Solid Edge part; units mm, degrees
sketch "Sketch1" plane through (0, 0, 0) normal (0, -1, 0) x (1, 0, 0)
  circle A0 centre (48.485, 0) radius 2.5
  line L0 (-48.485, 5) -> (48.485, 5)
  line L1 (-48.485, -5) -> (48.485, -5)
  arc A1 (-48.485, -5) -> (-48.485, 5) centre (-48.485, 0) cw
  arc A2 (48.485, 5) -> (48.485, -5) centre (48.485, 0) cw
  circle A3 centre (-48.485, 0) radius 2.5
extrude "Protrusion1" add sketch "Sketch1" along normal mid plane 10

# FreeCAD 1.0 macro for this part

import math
import FreeCAD as App
import Part
import Sketcher

doc = App.newDocument("Part")
body = doc.addObject("PartDesign::Body", "Body")

# Sketch on XZ plane
sketch1 = body.newObject("Sketcher::SketchObject", "Sketch")
sketch1.AttachmentSupport = (doc.getObject("XZ_Plane"), [""])
sketch1.MapMode = "FlatFace"
sketch1.addGeometry([
    Part.LineSegment(App.Vector(48.485, 5, 0), App.Vector(-48.485, 5, 0)),  # 0
    Part.ArcOfCircle(Part.Circle(App.Vector(-48.485, 0, 0), App.Vector(0, 0, 1), 5), math.radians(90), math.radians(270)),  # 1
    Part.LineSegment(App.Vector(-48.485, -5, 0), App.Vector(48.485, -5, 0)),  # 2
    Part.ArcOfCircle(Part.Circle(App.Vector(48.485, 0, 0), App.Vector(0, 0, 1), 5), math.radians(-90), math.radians(90)),  # 3
    Part.Circle(App.Vector(-48.485, 0, 0), App.Vector(0, 0, 1), 2.5),  # 4
    Part.Circle(App.Vector(48.485, 0, 0), App.Vector(0, 0, 1), 2.5),  # 5
], False)
sketch1.addConstraint([
    Sketcher.Constraint("Tangent", 0, 2, 1, 1),
    Sketcher.Constraint("Tangent", 1, 2, 2, 1),
    Sketcher.Constraint("Tangent", 2, 2, 3, 1),
    Sketcher.Constraint("Tangent", 3, 2, 0, 1),
    Sketcher.Constraint("Horizontal", 0),
    Sketcher.Constraint("Horizontal", 2),
    Sketcher.Constraint("Coincident", 4, 3, 1, 3),
    Sketcher.Constraint("Coincident", 5, 3, 3, 3),
    Sketcher.Constraint("Equal", 4, 5),
    Sketcher.Constraint("Symmetric", 1, 3, 3, 3, -1, 1),
    Sketcher.Constraint("Diameter", 4, 5.0),
    Sketcher.Constraint("Radius", 1, 5.0),
    Sketcher.Constraint("DistanceX", 0, 2, 0, 1, 96.97),
])
pad1 = body.newObject("PartDesign::Pad", "Pad")
pad1.Profile = sketch1
pad1.Length = 10
pad1.Midplane = True

doc.recompute()
